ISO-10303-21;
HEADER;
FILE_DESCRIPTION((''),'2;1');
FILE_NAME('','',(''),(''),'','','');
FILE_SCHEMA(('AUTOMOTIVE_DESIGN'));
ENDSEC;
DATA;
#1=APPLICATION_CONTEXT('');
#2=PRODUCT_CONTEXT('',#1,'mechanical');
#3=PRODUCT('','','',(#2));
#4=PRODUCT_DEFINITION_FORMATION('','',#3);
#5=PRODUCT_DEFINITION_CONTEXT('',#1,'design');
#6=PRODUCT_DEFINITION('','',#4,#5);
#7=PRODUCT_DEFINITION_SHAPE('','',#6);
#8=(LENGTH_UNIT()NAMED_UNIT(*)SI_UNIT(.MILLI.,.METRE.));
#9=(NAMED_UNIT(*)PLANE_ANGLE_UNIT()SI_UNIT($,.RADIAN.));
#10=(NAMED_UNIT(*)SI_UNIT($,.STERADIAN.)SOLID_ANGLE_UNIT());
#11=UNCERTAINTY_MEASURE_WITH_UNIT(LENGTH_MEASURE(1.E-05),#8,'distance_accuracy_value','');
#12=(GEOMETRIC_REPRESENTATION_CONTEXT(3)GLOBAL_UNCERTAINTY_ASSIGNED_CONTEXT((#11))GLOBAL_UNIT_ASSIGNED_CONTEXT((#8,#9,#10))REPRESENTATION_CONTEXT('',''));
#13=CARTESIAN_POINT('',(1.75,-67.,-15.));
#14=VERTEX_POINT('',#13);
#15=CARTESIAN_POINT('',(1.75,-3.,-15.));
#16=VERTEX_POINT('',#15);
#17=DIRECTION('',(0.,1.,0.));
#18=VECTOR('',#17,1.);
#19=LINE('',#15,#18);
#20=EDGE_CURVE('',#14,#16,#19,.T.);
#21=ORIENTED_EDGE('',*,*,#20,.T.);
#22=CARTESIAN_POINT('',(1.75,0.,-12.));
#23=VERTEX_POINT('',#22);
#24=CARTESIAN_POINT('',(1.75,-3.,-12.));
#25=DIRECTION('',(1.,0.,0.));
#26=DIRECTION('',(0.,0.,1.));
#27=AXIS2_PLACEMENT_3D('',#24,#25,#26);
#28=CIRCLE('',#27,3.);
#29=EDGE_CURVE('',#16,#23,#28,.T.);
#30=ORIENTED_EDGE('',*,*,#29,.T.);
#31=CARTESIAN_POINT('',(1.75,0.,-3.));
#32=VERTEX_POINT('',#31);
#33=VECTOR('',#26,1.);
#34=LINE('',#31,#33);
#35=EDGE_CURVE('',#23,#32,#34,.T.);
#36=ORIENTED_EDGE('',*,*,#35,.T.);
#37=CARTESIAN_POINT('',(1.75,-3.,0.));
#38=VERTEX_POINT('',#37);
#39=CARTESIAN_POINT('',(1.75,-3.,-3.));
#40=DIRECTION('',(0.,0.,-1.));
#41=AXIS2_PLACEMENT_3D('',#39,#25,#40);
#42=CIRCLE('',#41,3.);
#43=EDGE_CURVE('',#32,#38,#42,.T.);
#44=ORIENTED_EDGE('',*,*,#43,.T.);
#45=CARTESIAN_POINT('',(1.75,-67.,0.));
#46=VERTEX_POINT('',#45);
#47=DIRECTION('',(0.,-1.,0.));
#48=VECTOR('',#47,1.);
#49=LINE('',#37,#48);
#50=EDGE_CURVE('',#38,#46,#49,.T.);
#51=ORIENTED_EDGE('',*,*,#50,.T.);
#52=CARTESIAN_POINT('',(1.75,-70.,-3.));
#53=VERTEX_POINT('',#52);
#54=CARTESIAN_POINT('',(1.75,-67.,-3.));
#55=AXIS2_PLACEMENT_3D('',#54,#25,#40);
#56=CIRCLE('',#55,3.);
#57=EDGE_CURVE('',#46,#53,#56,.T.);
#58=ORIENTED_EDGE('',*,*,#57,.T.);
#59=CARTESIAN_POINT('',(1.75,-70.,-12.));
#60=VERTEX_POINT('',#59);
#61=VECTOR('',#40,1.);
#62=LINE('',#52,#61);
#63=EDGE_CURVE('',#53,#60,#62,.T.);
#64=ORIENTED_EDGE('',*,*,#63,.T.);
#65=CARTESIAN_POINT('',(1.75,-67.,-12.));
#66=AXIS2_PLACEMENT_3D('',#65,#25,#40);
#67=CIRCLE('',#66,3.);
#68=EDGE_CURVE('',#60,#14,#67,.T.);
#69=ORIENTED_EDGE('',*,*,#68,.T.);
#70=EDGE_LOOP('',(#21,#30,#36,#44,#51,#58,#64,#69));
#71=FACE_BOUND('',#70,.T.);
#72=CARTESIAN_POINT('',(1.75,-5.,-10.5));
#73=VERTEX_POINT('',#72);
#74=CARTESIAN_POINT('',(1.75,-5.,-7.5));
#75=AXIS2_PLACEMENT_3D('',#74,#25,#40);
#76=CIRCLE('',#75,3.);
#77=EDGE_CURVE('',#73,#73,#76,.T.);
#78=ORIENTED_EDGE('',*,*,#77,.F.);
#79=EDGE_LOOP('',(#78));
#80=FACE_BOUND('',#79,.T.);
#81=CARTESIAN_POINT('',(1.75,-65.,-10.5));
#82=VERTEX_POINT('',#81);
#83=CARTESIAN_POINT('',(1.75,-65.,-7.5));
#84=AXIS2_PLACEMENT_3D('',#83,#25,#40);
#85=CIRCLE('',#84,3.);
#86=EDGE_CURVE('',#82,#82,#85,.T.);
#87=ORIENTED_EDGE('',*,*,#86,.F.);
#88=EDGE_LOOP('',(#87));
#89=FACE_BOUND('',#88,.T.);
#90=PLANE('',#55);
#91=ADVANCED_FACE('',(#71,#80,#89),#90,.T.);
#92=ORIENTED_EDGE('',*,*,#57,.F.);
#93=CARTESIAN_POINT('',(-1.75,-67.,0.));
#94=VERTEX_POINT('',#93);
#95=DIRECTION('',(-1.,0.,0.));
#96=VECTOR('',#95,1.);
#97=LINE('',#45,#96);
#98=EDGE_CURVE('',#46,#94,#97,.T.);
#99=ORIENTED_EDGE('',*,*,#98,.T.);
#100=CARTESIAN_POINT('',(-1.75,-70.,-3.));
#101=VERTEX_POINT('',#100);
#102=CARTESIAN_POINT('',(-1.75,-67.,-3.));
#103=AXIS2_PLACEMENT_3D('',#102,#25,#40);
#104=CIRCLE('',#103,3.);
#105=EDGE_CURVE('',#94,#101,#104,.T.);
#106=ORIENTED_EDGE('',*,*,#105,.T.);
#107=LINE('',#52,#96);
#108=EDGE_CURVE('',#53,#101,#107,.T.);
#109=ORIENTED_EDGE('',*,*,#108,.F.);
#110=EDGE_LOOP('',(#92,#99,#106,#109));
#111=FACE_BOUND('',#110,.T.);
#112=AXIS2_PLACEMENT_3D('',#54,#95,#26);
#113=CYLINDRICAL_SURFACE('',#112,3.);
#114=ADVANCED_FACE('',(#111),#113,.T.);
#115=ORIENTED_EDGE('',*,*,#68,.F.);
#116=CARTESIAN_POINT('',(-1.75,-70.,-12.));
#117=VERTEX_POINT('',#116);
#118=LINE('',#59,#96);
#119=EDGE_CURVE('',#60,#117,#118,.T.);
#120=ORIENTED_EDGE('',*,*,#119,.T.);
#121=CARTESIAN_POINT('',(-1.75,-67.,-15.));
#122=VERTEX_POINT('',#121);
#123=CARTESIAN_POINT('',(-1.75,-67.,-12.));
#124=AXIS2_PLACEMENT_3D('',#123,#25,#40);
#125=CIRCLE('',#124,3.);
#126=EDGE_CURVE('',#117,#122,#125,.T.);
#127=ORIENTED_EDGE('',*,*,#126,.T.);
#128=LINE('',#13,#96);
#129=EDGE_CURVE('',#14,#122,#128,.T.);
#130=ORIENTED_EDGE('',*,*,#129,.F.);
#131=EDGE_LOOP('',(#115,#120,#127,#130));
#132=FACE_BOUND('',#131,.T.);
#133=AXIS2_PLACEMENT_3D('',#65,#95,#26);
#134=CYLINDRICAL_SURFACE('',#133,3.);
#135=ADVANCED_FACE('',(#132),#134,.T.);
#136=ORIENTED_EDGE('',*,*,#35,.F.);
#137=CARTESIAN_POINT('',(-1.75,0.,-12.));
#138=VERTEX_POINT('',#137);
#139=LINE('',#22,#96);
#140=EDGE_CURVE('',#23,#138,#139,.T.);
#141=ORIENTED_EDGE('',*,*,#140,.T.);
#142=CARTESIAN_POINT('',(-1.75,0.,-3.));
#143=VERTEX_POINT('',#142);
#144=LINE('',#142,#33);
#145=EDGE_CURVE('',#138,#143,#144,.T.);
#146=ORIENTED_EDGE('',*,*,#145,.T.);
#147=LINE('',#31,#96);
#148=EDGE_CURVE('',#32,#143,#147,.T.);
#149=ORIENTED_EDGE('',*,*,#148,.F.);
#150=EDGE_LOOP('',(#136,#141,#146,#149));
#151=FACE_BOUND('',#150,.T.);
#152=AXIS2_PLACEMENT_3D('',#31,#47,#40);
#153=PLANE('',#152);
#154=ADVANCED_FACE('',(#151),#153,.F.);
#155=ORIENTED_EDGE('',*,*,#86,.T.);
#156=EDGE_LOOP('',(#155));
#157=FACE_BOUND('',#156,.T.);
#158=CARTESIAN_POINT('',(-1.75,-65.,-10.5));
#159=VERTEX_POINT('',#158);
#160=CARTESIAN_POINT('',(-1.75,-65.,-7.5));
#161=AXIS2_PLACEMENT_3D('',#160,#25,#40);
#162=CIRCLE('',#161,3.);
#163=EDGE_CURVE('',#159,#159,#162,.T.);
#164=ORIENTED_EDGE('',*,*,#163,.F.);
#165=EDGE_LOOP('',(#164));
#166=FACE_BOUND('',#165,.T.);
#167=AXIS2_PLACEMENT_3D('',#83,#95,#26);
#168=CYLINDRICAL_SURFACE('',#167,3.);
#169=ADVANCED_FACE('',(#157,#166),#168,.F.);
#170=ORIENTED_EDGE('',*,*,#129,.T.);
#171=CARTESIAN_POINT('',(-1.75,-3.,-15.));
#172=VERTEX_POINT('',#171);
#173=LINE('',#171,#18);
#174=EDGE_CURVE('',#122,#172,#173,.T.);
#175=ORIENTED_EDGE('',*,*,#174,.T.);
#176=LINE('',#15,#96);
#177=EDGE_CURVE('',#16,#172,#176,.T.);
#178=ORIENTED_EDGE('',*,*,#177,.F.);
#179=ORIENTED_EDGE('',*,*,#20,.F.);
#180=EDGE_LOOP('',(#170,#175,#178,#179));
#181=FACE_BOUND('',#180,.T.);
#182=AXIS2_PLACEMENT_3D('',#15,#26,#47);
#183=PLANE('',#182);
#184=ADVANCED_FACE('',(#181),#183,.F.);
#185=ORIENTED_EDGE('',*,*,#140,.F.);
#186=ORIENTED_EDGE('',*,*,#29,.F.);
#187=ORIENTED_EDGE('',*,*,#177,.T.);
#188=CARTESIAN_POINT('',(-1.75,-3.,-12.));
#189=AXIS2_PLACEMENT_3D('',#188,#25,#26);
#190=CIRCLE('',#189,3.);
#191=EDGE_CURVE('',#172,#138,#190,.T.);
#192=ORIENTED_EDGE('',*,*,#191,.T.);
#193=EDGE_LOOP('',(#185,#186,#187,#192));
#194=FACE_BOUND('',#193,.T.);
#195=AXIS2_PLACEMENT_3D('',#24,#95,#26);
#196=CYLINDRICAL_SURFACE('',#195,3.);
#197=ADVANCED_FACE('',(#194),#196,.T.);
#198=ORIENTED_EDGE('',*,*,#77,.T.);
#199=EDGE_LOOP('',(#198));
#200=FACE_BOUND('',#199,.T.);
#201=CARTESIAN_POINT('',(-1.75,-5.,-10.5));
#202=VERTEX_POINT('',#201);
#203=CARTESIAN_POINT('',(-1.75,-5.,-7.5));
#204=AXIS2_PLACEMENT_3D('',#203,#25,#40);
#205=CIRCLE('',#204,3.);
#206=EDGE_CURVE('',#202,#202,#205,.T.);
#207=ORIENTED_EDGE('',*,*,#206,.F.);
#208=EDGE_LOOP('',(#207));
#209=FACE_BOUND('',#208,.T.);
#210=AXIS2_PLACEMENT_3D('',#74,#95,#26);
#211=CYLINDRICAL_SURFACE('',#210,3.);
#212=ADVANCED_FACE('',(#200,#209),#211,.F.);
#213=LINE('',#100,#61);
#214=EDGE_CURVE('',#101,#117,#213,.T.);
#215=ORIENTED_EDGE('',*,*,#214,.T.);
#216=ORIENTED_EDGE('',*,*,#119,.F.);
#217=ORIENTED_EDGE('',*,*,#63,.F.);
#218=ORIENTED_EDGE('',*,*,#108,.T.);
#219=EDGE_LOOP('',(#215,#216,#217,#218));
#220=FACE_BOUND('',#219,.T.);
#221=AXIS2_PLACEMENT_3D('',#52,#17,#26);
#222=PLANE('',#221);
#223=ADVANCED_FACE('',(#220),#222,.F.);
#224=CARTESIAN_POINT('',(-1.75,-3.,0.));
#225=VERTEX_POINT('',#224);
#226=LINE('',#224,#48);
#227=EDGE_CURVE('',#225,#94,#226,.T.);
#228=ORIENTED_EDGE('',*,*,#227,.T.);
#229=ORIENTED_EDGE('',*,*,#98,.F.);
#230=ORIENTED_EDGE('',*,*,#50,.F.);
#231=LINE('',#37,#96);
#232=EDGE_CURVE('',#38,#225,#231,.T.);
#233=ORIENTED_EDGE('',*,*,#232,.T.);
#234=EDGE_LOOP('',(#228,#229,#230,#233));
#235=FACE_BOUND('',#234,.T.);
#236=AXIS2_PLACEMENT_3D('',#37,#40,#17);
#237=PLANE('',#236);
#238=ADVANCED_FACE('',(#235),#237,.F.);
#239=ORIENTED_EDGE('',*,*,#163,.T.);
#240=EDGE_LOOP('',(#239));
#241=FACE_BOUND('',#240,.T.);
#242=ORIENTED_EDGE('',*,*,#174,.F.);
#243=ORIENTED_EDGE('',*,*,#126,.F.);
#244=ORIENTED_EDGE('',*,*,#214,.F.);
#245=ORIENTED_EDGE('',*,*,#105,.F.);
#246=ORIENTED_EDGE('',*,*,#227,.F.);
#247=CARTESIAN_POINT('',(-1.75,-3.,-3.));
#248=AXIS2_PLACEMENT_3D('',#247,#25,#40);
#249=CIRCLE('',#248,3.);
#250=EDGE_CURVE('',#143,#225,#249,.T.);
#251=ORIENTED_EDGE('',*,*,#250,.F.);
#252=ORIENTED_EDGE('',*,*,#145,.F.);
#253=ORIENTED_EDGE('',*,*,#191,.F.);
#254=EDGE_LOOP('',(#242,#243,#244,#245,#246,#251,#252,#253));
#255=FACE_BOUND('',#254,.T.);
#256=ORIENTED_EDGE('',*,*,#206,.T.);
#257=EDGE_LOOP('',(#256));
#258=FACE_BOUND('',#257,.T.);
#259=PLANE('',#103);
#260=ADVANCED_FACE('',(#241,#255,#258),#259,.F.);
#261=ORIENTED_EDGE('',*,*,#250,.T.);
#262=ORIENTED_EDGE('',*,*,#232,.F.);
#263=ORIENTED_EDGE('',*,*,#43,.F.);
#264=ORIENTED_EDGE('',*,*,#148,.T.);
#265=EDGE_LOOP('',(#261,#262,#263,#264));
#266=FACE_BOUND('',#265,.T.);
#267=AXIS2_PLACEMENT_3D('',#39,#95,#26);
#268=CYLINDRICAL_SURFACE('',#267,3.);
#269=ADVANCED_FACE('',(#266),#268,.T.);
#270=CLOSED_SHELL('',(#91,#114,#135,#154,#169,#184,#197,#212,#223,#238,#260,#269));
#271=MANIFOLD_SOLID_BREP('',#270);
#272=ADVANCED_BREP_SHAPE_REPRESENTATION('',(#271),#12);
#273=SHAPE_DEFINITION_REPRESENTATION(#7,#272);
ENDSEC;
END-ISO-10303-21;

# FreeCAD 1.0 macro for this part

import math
import FreeCAD as App
import Part
import Sketcher

V = App.Vector

doc = App.newDocument("Part")
body = doc.addObject("PartDesign::Body", "Body")

sketch1 = body.newObject("Sketcher::SketchObject", "Sketch")
sketch1.AttachmentSupport = (doc.getObject("YZ_Plane"), [""])
sketch1.MapMode = "FlatFace"
sketch1.addGeometry(Part.LineSegment(V(0, -12, 0), V(0, -3, 0)), False)
sketch1.addGeometry(Part.ArcOfCircle(Part.Circle(V(-3, -3, 0), V(0, 0, 1), 3), math.radians(0), math.radians(90)), False)
sketch1.addGeometry(Part.LineSegment(V(-3, 0, 0), V(-67, 0, 0)), False)
sketch1.addGeometry(Part.ArcOfCircle(Part.Circle(V(-67, -3, 0), V(0, 0, 1), 3), math.radians(90), math.radians(180)), False)
sketch1.addGeometry(Part.LineSegment(V(-70, -3, 0), V(-70, -12, 0)), False)
sketch1.addGeometry(Part.ArcOfCircle(Part.Circle(V(-67, -12, 0), V(0, 0, 1), 3), math.radians(180), math.radians(270)), False)
sketch1.addGeometry(Part.LineSegment(V(-67, -15, 0), V(-3, -15, 0)), False)
sketch1.addGeometry(Part.ArcOfCircle(Part.Circle(V(-3, -12, 0), V(0, 0, 1), 3), math.radians(-90), math.radians(0)), False)
sketch1.addGeometry(Part.Circle(V(-65, -7.5, 0), V(0, 0, 1), 3), False)
sketch1.addGeometry(Part.Circle(V(-5, -7.5, 0), V(0, 0, 1), 3), False)
sketch1.addConstraint(Sketcher.Constraint("Tangent", 0, 2, 1, 1))
sketch1.addConstraint(Sketcher.Constraint("Tangent", 1, 2, 2, 1))
sketch1.addConstraint(Sketcher.Constraint("Tangent", 2, 2, 3, 1))
sketch1.addConstraint(Sketcher.Constraint("Tangent", 3, 2, 4, 1))
sketch1.addConstraint(Sketcher.Constraint("Tangent", 4, 2, 5, 1))
sketch1.addConstraint(Sketcher.Constraint("Tangent", 5, 2, 6, 1))
sketch1.addConstraint(Sketcher.Constraint("Tangent", 6, 2, 7, 1))
sketch1.addConstraint(Sketcher.Constraint("Tangent", 7, 2, 0, 1))
sketch1.addConstraint(Sketcher.Constraint("Vertical", 0))
sketch1.addConstraint(Sketcher.Constraint("Horizontal", 2))
sketch1.addConstraint(Sketcher.Constraint("Vertical", 4))
sketch1.addConstraint(Sketcher.Constraint("Horizontal", 6))
sketch1.addConstraint(Sketcher.Constraint("Equal", 1, 3))
sketch1.addConstraint(Sketcher.Constraint("Equal", 3, 5))
sketch1.addConstraint(Sketcher.Constraint("Equal", 5, 7))
sketch1.addConstraint(Sketcher.Constraint("Equal", 7, 8))
sketch1.addConstraint(Sketcher.Constraint("Equal", 8, 9))
sketch1.addConstraint(Sketcher.Constraint("PointOnObject", 0, 2, -2))
sketch1.addConstraint(Sketcher.Constraint("PointOnObject", 1, 2, -1))
sketch1.addConstraint(Sketcher.Constraint("Horizontal", 8, 3, 9, 3))
sketch1.addConstraint(Sketcher.Constraint("Diameter", 8, 6.0))
sketch1.addConstraint(Sketcher.Constraint("DistanceX", 2, 2, 2, 1, 64.0))
sketch1.addConstraint(Sketcher.Constraint("DistanceY", 0, 1, 0, 2, 9.0))
sketch1.addConstraint(Sketcher.Constraint("DistanceX", 8, 3, -1, 1, 65.0))
sketch1.addConstraint(Sketcher.Constraint("DistanceX", 9, 3, -1, 1, 5.0))
sketch1.addConstraint(Sketcher.Constraint("DistanceY", 8, 3, -1, 1, 7.5))
pad1 = body.newObject("PartDesign::Pad", "Pad")
pad1.Profile = sketch1
pad1.Length = 3.5
pad1.Midplane = True

doc.recompute()
